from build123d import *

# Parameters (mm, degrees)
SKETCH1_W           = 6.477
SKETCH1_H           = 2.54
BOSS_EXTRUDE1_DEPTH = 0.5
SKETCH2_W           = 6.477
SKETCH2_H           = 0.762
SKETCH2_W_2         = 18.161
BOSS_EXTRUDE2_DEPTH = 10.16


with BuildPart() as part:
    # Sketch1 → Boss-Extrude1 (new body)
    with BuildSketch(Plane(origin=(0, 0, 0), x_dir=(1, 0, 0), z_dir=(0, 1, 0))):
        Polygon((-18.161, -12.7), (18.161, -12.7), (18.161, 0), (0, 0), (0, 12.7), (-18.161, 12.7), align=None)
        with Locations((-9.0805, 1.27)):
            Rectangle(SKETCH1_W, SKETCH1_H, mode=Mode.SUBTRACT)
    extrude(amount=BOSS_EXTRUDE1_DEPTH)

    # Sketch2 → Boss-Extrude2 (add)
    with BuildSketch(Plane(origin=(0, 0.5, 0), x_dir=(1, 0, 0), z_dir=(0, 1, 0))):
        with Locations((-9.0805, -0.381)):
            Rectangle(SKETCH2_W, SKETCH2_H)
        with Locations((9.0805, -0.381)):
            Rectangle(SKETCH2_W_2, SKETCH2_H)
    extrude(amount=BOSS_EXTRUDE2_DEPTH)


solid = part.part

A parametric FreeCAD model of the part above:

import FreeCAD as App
import Part
import Sketcher
from FreeCAD import Vector
Q = App.Units.Quantity


def add_polygon(sketch, points):
    """Adds a closed chain of lines whose ends are joined by coincident constraints."""
    first, n = sketch.GeometryCount, len(points)
    for a, b in zip(points, points[1:] + points[:1]):
        sketch.addGeometry(Part.LineSegment(App.Vector(*a, 0), App.Vector(*b, 0)), False)
    for i in range(n):
        sketch.addConstraint(Sketcher.Constraint("Coincident", first + i, 2, first + (i + 1) % n, 1))

doc = App.newDocument("Part")
params = doc.addObject("Spreadsheet::Sheet", "Params")
for row, (alias, value) in enumerate([
    ("sketch1_height", "1 in"),
    ("sketch1_height2", "0.1 in"),
    ("sketch1_width", "1.43 in"),
    ("sketch1_width2", "0.255 in"),
    ("pad1_length", "0.5 mm"),
    ("sketch2_height", "0.03 in"),
    ("sketch2_width", "0.255 in"),
    ("sketch2_width2", "0.715 in"),
    ("pad2_length", "0.4 in"),
], start=1):
    params.set(f"A{row}", alias)
    params.set(f"B{row}", "=" + value)
    params.setAlias(f"B{row}", alias)

body = doc.addObject("PartDesign::Body", "Body")

# Sketch on XZ plane
sketch1 = doc.addObject("Sketcher::SketchObject", "Sketch")
body.addObject(sketch1)
sketch1.AttachmentSupport = (doc.XZ_Plane, [""])
sketch1.MapMode = "FlatFace"
add_polygon(sketch1, [(-18.2, 12.7), (18.2, 12.7), (18.2, 0), (0, 0), (0, -12.7), (-18.2, -12.7)])  # lines 0-5
add_polygon(sketch1, [(-5.8, 0), (-12.3, 0), (-12.3, -2.5), (-5.8, -2.5)])  # lines 6-9
sketch1.addConstraint([
    Sketcher.Constraint("Horizontal", 0),
    Sketcher.Constraint("Vertical", 1),
    Sketcher.Constraint("Horizontal", 2),
    Sketcher.Constraint("Vertical", 3),
    Sketcher.Constraint("Horizontal", 4),
    Sketcher.Constraint("Vertical", 5),
    Sketcher.Constraint("Horizontal", 6),
    Sketcher.Constraint("Vertical", 7),
    Sketcher.Constraint("Horizontal", 8),
    Sketcher.Constraint("Vertical", 9),
    Sketcher.Constraint("Coincident", 2, 2, -1, 1),
    Sketcher.Constraint("Symmetric", 0, 2, 4, 2, -1, 1),
    Sketcher.Constraint("PointOnObject", 6, 2, -1),
    Sketcher.Constraint("DistanceY", 5, 1, 5, 2, Q("1 in")),
    Sketcher.Constraint("DistanceY", 7, 2, 7, 1, Q("0.1 in")),
    Sketcher.Constraint("DistanceX", 0, 1, 0, 2, Q("1.43 in")),
    Sketcher.Constraint("DistanceX", 6, 2, 1, 2, Q("1.2 in")),
    Sketcher.Constraint("DistanceX", 6, 2, 6, 1, Q("0.255 in")),
])
sketch1.setExpression("Constraints[23]", "Params.sketch1_height")
sketch1.setExpression("Constraints[24]", "Params.sketch1_height2")
sketch1.setExpression("Constraints[25]", "Params.sketch1_width")
sketch1.setExpression("Constraints[27]", "Params.sketch1_width2")
pad1 = doc.addObject("PartDesign::Pad", "Pad")
body.addObject(pad1)
pad1.Profile = sketch1
pad1.setExpression("Length", "Params.pad1_length")
pad1.Reversed = True

# Sketch on XZ plane
sketch2 = doc.addObject("Sketcher::SketchObject", "Sketch001")
body.addObject(sketch2)
sketch2.AttachmentSupport = (doc.XZ_Plane, [""])
sketch2.MapMode = "FlatFace"
sketch2.AttachmentOffset = App.Placement(Vector(0, 0, -0.5), App.Rotation())
add_polygon(sketch2, [(-12.3, 0), (-12.3, 0.8), (-5.8, 0.8), (-5.8, 0)])  # lines 0-3
add_polygon(sketch2, [(0, 0), (0, 0.8), (18.2, 0.8), (18.2, 0)])  # lines 4-7
sketch2.addConstraint([
    Sketcher.Constraint("Vertical", 0),
    Sketcher.Constraint("Horizontal", 1),
    Sketcher.Constraint("Vertical", 2),
    Sketcher.Constraint("Horizontal", 3),
    Sketcher.Constraint("Vertical", 4),
    Sketcher.Constraint("Horizontal", 5),
    Sketcher.Constraint("Vertical", 6),
    Sketcher.Constraint("Horizontal", 7),
    Sketcher.Constraint("Coincident", 7, 2, -1, 1),
    Sketcher.Constraint("PointOnObject", 2, 2, -1),
    Sketcher.Constraint("Horizontal", 1, 2, 4, 2),
    Sketcher.Constraint("DistanceY", 0, 1, 0, 2, Q("0.03 in")),
    Sketcher.Constraint("DistanceX", 0, 2, 5, 2, Q("1.2 in")),
    Sketcher.Constraint("DistanceX", 1, 1, 1, 2, Q("0.255 in")),
    Sketcher.Constraint("DistanceX", 5, 1, 5, 2, Q("0.715 in")),
])
sketch2.setExpression("Constraints[19]", "Params.sketch2_height")
sketch2.setExpression("Constraints[21]", "Params.sketch2_width")
sketch2.setExpression("Constraints[22]", "Params.sketch2_width2")
pad2 = doc.addObject("PartDesign::Pad", "Pad001")
body.addObject(pad2)
pad2.Profile = sketch2
pad2.setExpression("Length", "Params.pad2_length")
pad2.Reversed = True

doc.recompute()
